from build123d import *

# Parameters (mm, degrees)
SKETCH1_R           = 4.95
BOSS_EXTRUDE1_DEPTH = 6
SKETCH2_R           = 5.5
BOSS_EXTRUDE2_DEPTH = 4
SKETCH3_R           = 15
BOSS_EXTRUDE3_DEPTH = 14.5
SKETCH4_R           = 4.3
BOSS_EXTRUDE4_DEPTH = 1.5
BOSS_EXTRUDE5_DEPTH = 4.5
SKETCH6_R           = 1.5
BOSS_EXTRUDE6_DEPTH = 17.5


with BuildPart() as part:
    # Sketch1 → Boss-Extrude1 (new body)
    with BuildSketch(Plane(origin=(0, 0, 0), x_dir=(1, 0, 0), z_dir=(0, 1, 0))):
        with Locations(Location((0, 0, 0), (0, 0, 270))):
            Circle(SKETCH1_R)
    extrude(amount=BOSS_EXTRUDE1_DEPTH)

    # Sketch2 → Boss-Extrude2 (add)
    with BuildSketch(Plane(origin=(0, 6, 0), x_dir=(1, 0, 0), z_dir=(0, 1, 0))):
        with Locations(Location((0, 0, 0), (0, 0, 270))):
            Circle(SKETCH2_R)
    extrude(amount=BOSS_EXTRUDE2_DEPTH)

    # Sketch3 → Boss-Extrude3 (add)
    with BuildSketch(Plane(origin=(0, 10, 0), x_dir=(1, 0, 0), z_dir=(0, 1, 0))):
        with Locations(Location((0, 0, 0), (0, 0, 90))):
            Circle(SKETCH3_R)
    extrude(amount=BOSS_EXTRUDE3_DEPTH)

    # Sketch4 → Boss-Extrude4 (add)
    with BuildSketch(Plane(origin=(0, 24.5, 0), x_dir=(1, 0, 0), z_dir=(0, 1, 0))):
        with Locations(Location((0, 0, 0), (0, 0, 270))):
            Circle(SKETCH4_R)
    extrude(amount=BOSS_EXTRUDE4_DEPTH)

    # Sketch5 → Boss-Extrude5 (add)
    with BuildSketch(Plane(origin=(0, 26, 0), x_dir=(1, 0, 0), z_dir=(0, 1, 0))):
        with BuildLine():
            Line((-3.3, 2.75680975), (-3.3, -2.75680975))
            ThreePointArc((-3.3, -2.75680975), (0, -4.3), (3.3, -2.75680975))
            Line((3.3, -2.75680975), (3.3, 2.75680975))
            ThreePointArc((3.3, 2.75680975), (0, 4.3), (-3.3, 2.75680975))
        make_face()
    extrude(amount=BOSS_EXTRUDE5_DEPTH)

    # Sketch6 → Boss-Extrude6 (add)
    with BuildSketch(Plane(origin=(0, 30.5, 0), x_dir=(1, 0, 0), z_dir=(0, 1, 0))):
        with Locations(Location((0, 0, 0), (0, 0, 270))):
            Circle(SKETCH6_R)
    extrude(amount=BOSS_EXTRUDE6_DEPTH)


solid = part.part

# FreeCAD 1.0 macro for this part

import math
import FreeCAD as App
import Part
import Sketcher
Q = App.Units.Quantity

doc = App.newDocument("Part")
params = doc.addObject("Spreadsheet::Sheet", "Params")
for row, (alias, value) in enumerate([
    ("sketch1_diameter", "9.9 mm"),
    ("pad1_length", "6 mm"),
    ("sketch2_diameter", "11 mm"),
    ("pad2_length", "4 mm"),
    ("sketch3_diameter", "30 mm"),
    ("pad3_length", "14.5 mm"),
    ("sketch4_diameter", "8.6 mm"),
    ("pad4_length", "1.5 mm"),
    ("sketch5_radius", "4.3 mm"),
    ("pad5_length", "4.5 mm"),
    ("sketch6_diameter", "3 mm"),
    ("pad6_length", "17.5 mm"),
], start=1):
    params.set(f"A{row}", alias)
    params.set(f"B{row}", "=" + value)
    params.setAlias(f"B{row}", alias)

body = doc.addObject("PartDesign::Body", "Body")

sketch1 = body.newObject("Sketcher::SketchObject", "Sketch")
sketch1.AttachmentSupport = (doc.getObject("XZ_Plane"), [""])
sketch1.MapMode = "FlatFace"
sketch1.addGeometry(Part.Circle(App.Vector(0, 0, 0), App.Vector(0, 0, 1), 5), False)
sketch1.addConstraint([
    Sketcher.Constraint("Coincident", 0, 3, -1, 1),
    Sketcher.Constraint("Diameter", 0, Q("9.9 mm")),
])
sketch1.setExpression("Constraints[1]", "Params.sketch1_diameter")
pad1 = body.newObject("PartDesign::Pad", "Pad")
pad1.Profile = sketch1
pad1.setExpression("Length", "Params.pad1_length")
pad1.Reversed = True

sketch2 = body.newObject("Sketcher::SketchObject", "Sketch001")
sketch2.AttachmentSupport = (doc.getObject("XZ_Plane"), [""])
sketch2.MapMode = "FlatFace"
sketch2.AttachmentOffset = App.Placement(App.Vector(0, 0, -6), App.Rotation())
sketch2.addGeometry(Part.Circle(App.Vector(0, 0, 0), App.Vector(0, 0, 1), 6), False)
sketch2.addConstraint([
    Sketcher.Constraint("Coincident", 0, 3, -1, 1),
    Sketcher.Constraint("Diameter", 0, Q("11 mm")),
])
sketch2.setExpression("Constraints[1]", "Params.sketch2_diameter")
pad2 = body.newObject("PartDesign::Pad", "Pad001")
pad2.Profile = sketch2
pad2.setExpression("Length", "Params.pad2_length")
pad2.Reversed = True

sketch3 = body.newObject("Sketcher::SketchObject", "Sketch002")
sketch3.AttachmentSupport = (doc.getObject("XZ_Plane"), [""])
sketch3.MapMode = "FlatFace"
sketch3.AttachmentOffset = App.Placement(App.Vector(0, 0, -10), App.Rotation())
sketch3.addGeometry(Part.Circle(App.Vector(0, 0, 0), App.Vector(0, 0, 1), 15), False)
sketch3.addConstraint([
    Sketcher.Constraint("Coincident", 0, 3, -1, 1),
    Sketcher.Constraint("Diameter", 0, Q("30 mm")),
])
sketch3.setExpression("Constraints[1]", "Params.sketch3_diameter")
pad3 = body.newObject("PartDesign::Pad", "Pad002")
pad3.Profile = sketch3
pad3.setExpression("Length", "Params.pad3_length")
pad3.Reversed = True

sketch4 = body.newObject("Sketcher::SketchObject", "Sketch003")
sketch4.AttachmentSupport = (doc.getObject("XZ_Plane"), [""])
sketch4.MapMode = "FlatFace"
sketch4.AttachmentOffset = App.Placement(App.Vector(0, 0, -24.5), App.Rotation())
sketch4.addGeometry(Part.Circle(App.Vector(0, 0, 0), App.Vector(0, 0, 1), 4.3), False)
sketch4.addConstraint([
    Sketcher.Constraint("Coincident", 0, 3, -1, 1),
    Sketcher.Constraint("Diameter", 0, Q("8.6 mm")),
])
sketch4.setExpression("Constraints[1]", "Params.sketch4_diameter")
pad4 = body.newObject("PartDesign::Pad", "Pad003")
pad4.Profile = sketch4
pad4.setExpression("Length", "Params.pad4_length")
pad4.Reversed = True

sketch5 = body.newObject("Sketcher::SketchObject", "Sketch004")
sketch5.AttachmentSupport = (doc.getObject("XZ_Plane"), [""])
sketch5.MapMode = "FlatFace"
sketch5.AttachmentOffset = App.Placement(App.Vector(0, 0, -26), App.Rotation())
sketch5.addGeometry([
    Part.LineSegment(App.Vector(-3.3, -2.8, 0), App.Vector(-3.3, 2.8, 0)),
    Part.ArcOfCircle(Part.Circle(App.Vector(0, 0, 0), App.Vector(0, 0, 1), 4.3), math.radians(40), math.radians(140)),
    Part.LineSegment(App.Vector(3.3, 2.8, 0), App.Vector(3.3, -2.8, 0)),
    Part.ArcOfCircle(Part.Circle(App.Vector(0, 0, 0), App.Vector(0, 0, 1), 4.3), math.radians(-140), math.radians(-40)),
], False)
sketch5.addConstraint([
    Sketcher.Constraint("Coincident", 0, 2, 1, 2),
    Sketcher.Constraint("Coincident", 1, 1, 2, 1),
    Sketcher.Constraint("Coincident", 2, 2, 3, 2),
    Sketcher.Constraint("Coincident", 3, 1, 0, 1),
    Sketcher.Constraint("Vertical", 0),
    Sketcher.Constraint("Vertical", 2),
    Sketcher.Constraint("Coincident", 1, 3, -1, 1),
    Sketcher.Constraint("Coincident", 3, 3, -1, 1),
    Sketcher.Constraint("Equal", 1, 3),
    Sketcher.Constraint("Horizontal", 0, 2, 1, 1),
    Sketcher.Constraint("Radius", 1, Q("4.3 mm")),
    Sketcher.Constraint("DistanceX", 0, 2, -1, 1, Q("3.3 mm")),
])
sketch5.setExpression("Constraints[10]", "Params.sketch5_radius")
pad5 = body.newObject("PartDesign::Pad", "Pad004")
pad5.Profile = sketch5
pad5.setExpression("Length", "Params.pad5_length")
pad5.Reversed = True

sketch6 = body.newObject("Sketcher::SketchObject", "Sketch005")
sketch6.AttachmentSupport = (doc.getObject("XZ_Plane"), [""])
sketch6.MapMode = "FlatFace"
sketch6.AttachmentOffset = App.Placement(App.Vector(0, 0, -30.5), App.Rotation())
sketch6.addGeometry(Part.Circle(App.Vector(0, 0, 0), App.Vector(0, 0, 1), 1.5), False)
sketch6.addConstraint([
    Sketcher.Constraint("Coincident", 0, 3, -1, 1),
    Sketcher.Constraint("Diameter", 0, Q("3 mm")),
])
sketch6.setExpression("Constraints[1]", "Params.sketch6_diameter")
pad6 = body.newObject("PartDesign::Pad", "Pad005")
pad6.Profile = sketch6
pad6.setExpression("Length", "Params.pad6_length")
pad6.Reversed = True

doc.recompute()
